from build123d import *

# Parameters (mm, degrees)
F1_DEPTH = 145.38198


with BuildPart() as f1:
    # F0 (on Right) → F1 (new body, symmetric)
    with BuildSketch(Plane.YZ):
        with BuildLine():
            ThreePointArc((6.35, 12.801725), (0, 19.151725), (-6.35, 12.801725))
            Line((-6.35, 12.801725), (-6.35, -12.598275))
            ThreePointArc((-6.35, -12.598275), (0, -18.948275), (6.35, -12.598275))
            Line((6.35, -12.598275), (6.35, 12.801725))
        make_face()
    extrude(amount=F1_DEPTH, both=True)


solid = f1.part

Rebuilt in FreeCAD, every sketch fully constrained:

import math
import FreeCAD as App
import Part
import Sketcher

V = App.Vector
Q = App.Units.Quantity

doc = App.newDocument("Part")
body = doc.addObject("PartDesign::Body", "Body")

# Sketch on YZ plane
sketch1 = body.newObject("Sketcher::SketchObject", "Sketch")
sketch1.AttachmentSupport = (doc.getObject("YZ_Plane"), [""])
sketch1.MapMode = "FlatFace"
sketch1.addGeometry(Part.ArcOfCircle(Part.Circle(V(0, 13, 0), V(0, 0, 1), 6), math.radians(0), math.radians(180)), False)
sketch1.addGeometry(Part.LineSegment(V(-6, 13, 0), V(-6, -13, 0)), False)
sketch1.addGeometry(Part.ArcOfCircle(Part.Circle(V(0, -13, 0), V(0, 0, 1), 6), math.radians(180), math.radians(360)), False)
sketch1.addGeometry(Part.LineSegment(V(6, -13, 0), V(6, 13, 0)), False)
sketch1.addConstraint(Sketcher.Constraint("Tangent", 0, 2, 1, 1))
sketch1.addConstraint(Sketcher.Constraint("Tangent", 1, 2, 2, 1))
sketch1.addConstraint(Sketcher.Constraint("Tangent", 2, 2, 3, 1))
sketch1.addConstraint(Sketcher.Constraint("Tangent", 3, 2, 0, 1))
sketch1.addConstraint(Sketcher.Constraint("Vertical", 1))
sketch1.addConstraint(Sketcher.Constraint("Vertical", 3))
sketch1.addConstraint(Sketcher.Constraint("PointOnObject", 0, 3, -2))
sketch1.addConstraint(Sketcher.Constraint("DistanceY", 1, 2, 1, 1, Q("1 in")))
sketch1.addConstraint(Sketcher.Constraint("Radius", 0, Q("0.25 in")))
sketch1.addConstraint(Sketcher.Constraint("DistanceY", -1, 1, 0, 3, Q("12.801725 mm")))
pad1 = body.newObject("PartDesign::Pad", "Pad")
pad1.Profile = sketch1
pad1.Length = Q("11.4474 in")
pad1.Midplane = True

doc.recompute()
